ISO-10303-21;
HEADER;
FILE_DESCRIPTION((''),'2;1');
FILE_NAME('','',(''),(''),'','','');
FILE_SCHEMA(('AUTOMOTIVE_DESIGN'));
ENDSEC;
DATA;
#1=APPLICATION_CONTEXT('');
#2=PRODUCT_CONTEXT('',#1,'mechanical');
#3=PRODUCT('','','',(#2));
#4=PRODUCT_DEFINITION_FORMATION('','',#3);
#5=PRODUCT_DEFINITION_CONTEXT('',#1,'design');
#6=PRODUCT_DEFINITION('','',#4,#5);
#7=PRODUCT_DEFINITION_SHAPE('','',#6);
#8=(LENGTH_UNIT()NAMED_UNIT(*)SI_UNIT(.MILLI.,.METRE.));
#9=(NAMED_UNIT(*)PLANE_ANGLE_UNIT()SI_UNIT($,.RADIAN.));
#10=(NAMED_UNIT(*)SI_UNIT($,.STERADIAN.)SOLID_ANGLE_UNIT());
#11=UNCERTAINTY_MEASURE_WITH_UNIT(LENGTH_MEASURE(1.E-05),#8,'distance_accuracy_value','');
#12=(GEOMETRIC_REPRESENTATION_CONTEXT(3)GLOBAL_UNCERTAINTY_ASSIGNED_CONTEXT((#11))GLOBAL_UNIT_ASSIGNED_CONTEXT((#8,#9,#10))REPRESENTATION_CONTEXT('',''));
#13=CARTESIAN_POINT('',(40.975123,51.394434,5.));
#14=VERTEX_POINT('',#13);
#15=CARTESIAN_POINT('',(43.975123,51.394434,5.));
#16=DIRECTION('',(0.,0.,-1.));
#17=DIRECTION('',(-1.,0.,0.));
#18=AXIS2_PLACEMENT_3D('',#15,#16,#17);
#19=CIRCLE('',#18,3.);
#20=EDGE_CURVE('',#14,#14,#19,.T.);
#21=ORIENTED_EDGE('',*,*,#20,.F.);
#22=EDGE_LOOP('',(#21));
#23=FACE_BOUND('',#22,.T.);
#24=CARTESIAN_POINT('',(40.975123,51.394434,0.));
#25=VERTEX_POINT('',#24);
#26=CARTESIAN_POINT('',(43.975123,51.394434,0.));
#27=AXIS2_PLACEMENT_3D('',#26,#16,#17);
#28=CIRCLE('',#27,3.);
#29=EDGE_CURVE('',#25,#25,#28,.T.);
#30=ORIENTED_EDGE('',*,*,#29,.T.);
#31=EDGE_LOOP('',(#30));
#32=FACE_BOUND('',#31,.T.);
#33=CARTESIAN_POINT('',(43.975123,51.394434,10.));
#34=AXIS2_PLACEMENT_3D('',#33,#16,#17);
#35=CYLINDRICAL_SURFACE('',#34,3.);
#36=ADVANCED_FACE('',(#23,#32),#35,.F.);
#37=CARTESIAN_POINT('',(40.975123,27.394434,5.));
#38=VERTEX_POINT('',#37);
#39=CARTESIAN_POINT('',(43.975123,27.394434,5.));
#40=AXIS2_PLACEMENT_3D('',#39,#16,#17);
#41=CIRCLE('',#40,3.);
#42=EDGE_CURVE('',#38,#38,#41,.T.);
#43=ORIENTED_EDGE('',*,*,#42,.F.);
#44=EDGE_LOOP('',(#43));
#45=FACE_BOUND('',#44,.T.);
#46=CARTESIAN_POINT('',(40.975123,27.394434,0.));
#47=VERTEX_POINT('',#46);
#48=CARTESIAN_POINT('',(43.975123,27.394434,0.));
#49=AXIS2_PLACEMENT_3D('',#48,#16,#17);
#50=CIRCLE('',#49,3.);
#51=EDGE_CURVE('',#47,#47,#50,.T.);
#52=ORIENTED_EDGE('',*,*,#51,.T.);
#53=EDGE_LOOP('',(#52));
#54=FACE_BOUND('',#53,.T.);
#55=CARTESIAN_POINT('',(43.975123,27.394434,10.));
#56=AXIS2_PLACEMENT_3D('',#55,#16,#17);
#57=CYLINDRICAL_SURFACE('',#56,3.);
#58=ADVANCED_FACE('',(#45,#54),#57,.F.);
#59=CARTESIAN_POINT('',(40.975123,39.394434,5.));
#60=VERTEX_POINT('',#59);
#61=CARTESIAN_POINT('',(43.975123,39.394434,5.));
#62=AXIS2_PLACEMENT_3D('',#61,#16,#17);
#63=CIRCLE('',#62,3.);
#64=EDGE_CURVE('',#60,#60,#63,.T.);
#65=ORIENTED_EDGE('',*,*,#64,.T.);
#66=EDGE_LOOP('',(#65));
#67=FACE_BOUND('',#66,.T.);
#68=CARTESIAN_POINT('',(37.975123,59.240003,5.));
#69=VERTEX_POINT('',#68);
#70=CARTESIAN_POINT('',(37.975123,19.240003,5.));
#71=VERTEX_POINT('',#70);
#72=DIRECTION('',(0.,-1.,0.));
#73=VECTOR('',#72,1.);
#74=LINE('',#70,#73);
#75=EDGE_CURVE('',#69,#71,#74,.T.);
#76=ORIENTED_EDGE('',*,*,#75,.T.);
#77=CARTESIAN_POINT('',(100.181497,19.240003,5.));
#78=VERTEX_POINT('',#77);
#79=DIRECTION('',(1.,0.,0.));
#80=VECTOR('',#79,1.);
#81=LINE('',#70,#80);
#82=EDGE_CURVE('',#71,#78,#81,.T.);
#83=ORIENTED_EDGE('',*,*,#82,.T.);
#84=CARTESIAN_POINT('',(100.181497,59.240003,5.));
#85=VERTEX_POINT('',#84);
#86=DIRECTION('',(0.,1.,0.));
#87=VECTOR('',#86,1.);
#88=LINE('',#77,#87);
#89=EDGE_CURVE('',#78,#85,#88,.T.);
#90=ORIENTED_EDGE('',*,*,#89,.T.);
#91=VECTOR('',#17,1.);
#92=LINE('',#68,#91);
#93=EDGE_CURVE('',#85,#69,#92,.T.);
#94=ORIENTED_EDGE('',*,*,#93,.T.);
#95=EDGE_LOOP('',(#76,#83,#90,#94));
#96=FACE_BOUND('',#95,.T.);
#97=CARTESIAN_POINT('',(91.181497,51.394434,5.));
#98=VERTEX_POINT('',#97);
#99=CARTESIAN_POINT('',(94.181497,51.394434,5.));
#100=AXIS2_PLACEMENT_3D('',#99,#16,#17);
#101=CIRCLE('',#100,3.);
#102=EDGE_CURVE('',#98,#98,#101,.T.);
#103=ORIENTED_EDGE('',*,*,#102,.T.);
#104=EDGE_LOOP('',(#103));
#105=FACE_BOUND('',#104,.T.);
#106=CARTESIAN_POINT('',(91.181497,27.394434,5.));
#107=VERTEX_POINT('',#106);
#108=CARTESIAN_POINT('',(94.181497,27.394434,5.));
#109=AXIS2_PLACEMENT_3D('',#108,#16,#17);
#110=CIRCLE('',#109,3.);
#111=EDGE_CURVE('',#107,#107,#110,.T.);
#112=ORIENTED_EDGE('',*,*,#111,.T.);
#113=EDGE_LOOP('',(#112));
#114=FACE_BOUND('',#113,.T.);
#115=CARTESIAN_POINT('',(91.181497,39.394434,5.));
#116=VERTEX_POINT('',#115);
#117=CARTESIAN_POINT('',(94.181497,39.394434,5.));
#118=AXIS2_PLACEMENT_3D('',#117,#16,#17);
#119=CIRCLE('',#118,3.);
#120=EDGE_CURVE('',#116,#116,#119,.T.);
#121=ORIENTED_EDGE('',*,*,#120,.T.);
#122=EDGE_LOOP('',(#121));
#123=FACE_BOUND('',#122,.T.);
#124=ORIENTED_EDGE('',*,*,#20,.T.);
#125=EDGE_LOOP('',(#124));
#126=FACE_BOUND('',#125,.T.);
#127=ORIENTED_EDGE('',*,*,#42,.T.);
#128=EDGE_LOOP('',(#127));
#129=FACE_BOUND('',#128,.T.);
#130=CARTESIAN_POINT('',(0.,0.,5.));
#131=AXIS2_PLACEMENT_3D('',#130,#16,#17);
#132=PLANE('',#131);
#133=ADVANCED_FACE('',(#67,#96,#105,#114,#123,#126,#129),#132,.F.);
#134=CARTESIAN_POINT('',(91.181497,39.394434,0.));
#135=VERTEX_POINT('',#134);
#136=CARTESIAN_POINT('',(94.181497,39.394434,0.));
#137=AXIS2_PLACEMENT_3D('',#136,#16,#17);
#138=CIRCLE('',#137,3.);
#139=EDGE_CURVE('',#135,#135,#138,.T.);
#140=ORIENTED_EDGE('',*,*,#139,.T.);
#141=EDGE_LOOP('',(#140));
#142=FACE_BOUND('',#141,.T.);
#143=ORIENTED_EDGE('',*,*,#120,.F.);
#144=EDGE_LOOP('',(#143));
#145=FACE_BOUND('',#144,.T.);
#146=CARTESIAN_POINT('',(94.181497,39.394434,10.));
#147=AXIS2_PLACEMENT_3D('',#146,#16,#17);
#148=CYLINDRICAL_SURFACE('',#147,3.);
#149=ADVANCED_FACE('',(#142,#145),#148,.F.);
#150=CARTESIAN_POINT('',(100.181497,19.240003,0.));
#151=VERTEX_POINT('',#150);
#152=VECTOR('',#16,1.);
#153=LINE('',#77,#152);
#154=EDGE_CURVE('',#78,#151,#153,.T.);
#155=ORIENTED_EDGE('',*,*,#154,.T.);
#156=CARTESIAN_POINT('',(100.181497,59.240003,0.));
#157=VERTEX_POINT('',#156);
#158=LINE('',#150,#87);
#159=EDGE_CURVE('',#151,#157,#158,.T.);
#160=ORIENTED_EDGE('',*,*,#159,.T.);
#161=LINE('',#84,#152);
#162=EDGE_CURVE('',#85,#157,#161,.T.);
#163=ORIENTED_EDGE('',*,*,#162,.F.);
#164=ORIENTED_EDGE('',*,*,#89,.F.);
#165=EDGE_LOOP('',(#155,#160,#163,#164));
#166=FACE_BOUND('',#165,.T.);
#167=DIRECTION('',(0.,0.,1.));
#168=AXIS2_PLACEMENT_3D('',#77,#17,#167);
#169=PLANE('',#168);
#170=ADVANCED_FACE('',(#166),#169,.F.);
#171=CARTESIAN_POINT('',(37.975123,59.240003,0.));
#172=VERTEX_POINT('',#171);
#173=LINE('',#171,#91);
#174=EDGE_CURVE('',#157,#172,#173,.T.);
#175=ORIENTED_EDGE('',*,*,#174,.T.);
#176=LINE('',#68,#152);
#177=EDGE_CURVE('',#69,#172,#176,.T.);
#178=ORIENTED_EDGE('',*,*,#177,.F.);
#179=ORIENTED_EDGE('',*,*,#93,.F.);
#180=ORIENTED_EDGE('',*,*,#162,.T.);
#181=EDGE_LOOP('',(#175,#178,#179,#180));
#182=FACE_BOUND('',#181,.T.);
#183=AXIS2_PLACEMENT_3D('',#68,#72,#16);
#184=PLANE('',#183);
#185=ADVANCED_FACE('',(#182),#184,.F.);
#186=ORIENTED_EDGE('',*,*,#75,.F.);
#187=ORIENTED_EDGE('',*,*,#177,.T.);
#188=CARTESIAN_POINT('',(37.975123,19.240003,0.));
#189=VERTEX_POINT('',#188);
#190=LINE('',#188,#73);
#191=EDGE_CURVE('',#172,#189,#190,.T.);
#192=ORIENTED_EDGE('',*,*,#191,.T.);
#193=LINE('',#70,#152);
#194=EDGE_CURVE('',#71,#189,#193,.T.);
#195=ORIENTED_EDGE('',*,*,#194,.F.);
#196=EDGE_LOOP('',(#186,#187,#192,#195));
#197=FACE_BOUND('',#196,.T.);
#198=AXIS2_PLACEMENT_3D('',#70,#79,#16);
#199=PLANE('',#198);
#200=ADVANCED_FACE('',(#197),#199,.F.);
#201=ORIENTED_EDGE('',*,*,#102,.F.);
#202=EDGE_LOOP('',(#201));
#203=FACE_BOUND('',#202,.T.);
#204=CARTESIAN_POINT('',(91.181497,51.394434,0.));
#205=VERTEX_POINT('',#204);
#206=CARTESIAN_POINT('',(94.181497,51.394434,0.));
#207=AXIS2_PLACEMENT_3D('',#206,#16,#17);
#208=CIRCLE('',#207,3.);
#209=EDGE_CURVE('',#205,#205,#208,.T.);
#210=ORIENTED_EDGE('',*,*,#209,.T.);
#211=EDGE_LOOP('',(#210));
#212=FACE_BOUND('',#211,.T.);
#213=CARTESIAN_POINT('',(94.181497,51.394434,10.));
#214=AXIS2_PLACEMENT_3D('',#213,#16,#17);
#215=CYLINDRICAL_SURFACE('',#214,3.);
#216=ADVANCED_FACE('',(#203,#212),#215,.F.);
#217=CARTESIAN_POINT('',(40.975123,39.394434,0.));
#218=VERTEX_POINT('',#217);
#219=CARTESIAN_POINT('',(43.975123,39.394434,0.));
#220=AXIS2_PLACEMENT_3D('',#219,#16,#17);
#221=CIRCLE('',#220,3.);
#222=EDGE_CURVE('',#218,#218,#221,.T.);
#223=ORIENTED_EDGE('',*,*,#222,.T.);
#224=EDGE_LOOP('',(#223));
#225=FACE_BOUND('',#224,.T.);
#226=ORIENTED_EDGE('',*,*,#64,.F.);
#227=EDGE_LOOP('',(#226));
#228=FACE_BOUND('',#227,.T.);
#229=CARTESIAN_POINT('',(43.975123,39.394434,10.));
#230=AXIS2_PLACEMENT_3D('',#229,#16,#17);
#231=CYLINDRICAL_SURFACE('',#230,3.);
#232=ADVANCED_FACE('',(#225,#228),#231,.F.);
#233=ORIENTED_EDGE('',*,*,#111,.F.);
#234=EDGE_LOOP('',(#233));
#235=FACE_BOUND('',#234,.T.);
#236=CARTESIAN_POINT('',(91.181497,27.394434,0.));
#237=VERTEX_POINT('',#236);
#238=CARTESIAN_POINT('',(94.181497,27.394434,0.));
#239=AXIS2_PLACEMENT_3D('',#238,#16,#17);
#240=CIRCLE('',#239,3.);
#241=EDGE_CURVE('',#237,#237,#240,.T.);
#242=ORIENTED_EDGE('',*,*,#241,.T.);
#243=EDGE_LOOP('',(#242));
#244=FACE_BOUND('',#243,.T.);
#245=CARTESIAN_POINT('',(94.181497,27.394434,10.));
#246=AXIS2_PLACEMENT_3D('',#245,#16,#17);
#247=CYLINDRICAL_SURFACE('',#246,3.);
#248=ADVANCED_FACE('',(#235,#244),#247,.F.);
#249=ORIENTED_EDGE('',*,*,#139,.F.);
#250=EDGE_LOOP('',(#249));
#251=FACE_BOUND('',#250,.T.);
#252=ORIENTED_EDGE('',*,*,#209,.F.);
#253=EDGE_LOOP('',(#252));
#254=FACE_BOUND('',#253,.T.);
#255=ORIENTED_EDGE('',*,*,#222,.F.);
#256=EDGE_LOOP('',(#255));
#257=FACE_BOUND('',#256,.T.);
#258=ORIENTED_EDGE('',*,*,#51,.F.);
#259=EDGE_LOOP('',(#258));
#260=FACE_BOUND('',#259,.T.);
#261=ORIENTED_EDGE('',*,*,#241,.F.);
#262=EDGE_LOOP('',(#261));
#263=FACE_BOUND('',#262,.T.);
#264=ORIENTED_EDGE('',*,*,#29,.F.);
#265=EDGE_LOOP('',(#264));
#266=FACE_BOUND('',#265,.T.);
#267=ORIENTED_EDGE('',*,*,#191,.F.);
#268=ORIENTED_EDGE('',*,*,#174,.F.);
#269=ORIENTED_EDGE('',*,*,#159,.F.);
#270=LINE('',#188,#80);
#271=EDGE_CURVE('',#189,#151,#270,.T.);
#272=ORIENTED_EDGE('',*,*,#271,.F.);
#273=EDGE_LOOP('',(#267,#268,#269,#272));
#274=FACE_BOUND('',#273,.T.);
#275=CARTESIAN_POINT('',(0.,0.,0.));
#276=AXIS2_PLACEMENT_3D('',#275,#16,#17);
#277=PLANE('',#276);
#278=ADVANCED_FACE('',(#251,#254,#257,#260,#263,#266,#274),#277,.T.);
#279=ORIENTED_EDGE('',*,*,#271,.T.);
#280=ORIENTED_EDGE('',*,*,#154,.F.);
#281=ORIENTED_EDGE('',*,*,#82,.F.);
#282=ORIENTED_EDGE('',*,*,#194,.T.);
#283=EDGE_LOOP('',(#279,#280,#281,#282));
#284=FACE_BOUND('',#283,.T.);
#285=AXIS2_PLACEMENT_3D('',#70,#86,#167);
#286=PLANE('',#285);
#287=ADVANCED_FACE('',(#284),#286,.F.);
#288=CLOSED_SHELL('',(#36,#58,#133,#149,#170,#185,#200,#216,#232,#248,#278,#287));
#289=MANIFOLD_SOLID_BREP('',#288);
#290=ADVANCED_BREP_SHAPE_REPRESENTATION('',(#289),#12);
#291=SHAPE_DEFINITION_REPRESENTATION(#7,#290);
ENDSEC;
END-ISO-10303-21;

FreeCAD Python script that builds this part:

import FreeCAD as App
import Part
import Sketcher


def add_polygon(sketch, points):
    """Adds a closed chain of lines whose ends are joined by coincident constraints."""
    first, n = sketch.GeometryCount, len(points)
    for a, b in zip(points, points[1:] + points[:1]):
        sketch.addGeometry(Part.LineSegment(App.Vector(*a, 0), App.Vector(*b, 0)), False)
    for i in range(n):
        sketch.addConstraint(Sketcher.Constraint("Coincident", first + i, 2, first + (i + 1) % n, 1))

doc = App.newDocument("Part")
params = doc.addObject("Spreadsheet::Sheet", "Params")
for row, (alias, value) in enumerate([
    ("sketch1_height", "40 mm"),
    ("pad1_length", "5 mm"),
    ("sketch2_diameter", "6 mm"),
    ("pocket1_length", "10 mm"),
], start=1):
    params.set(f"A{row}", alias)
    params.set(f"B{row}", "=" + value)
    params.setAlias(f"B{row}", alias)

body = doc.addObject("PartDesign::Body", "Body")

# Sketch on XY plane
sketch1 = doc.addObject("Sketcher::SketchObject", "Sketch")
body.addObject(sketch1)
sketch1.AttachmentSupport = (doc.XY_Plane, [""])
sketch1.MapMode = "FlatFace"
add_polygon(sketch1, [(37.975123, 59.240003), (37.975123, 19.240003), (100.181497, 19.240003), (100.181497, 59.240003)])  # lines 0-3
sketch1.addConstraint(Sketcher.Constraint("Vertical", 0))
sketch1.addConstraint(Sketcher.Constraint("Horizontal", 1))
sketch1.addConstraint(Sketcher.Constraint("Vertical", 2))
sketch1.addConstraint(Sketcher.Constraint("Horizontal", 3))
sketch1.addConstraint(Sketcher.Constraint("DistanceY", 0, 2, 0, 1, 40.0))
sketch1.addConstraint(Sketcher.Constraint("DistanceX", 1, 1, 1, 2, 62.206374))
sketch1.addConstraint(Sketcher.Constraint("DistanceX", -1, 1, 0, 2, 37.975123))
sketch1.addConstraint(Sketcher.Constraint("DistanceY", -1, 1, 0, 2, 19.240003))
sketch1.setExpression("Constraints[8]", "Params.sketch1_height")
pad1 = doc.addObject("PartDesign::Pad", "Pad")
body.addObject(pad1)
pad1.Profile = sketch1
pad1.setExpression("Length", "Params.pad1_length")

# Sketch on XY plane
sketch2 = doc.addObject("Sketcher::SketchObject", "Sketch001")
body.addObject(sketch2)
sketch2.AttachmentSupport = (doc.XY_Plane, [""])
sketch2.MapMode = "FlatFace"
sketch2.addGeometry(Part.Circle(App.Vector(94.181497, 27.394434, 0), App.Vector(0, 0, 1), 3), False)
sketch2.addGeometry(Part.Circle(App.Vector(94.181497, 39.394434, 0), App.Vector(0, 0, 1), 3), False)
sketch2.addGeometry(Part.Circle(App.Vector(94.181497, 51.394434, 0), App.Vector(0, 0, 1), 3), False)
sketch2.addGeometry(Part.Circle(App.Vector(43.975123, 27.394434, 0), App.Vector(0, 0, 1), 3), False)
sketch2.addGeometry(Part.Circle(App.Vector(43.975123, 39.394434, 0), App.Vector(0, 0, 1), 3), False)
sketch2.addGeometry(Part.Circle(App.Vector(43.975123, 51.394434, 0), App.Vector(0, 0, 1), 3), False)
sketch2.addConstraint(Sketcher.Constraint("Equal", 0, 1))
sketch2.addConstraint(Sketcher.Constraint("Equal", 1, 2))
sketch2.addConstraint(Sketcher.Constraint("Equal", 2, 3))
sketch2.addConstraint(Sketcher.Constraint("Equal", 3, 4))
sketch2.addConstraint(Sketcher.Constraint("Equal", 4, 5))
sketch2.addConstraint(Sketcher.Constraint("Horizontal", 0, 3, 3, 3))
sketch2.addConstraint(Sketcher.Constraint("Horizontal", 1, 3, 4, 3))
sketch2.addConstraint(Sketcher.Constraint("Horizontal", 2, 3, 5, 3))
sketch2.addConstraint(Sketcher.Constraint("Vertical", 0, 3, 1, 3))
sketch2.addConstraint(Sketcher.Constraint("Vertical", 1, 3, 2, 3))
sketch2.addConstraint(Sketcher.Constraint("Vertical", 3, 3, 4, 3))
sketch2.addConstraint(Sketcher.Constraint("Vertical", 4, 3, 5, 3))
sketch2.addConstraint(Sketcher.Constraint("Diameter", 0, 6.0))
sketch2.addConstraint(Sketcher.Constraint("DistanceY", 0, 3, 1, 3, 12.0))
sketch2.addConstraint(Sketcher.Constraint("DistanceY", 1, 3, 2, 3, 12.0))
sketch2.addConstraint(Sketcher.Constraint("DistanceX", -1, 1, 0, 3, 94.181497))
sketch2.addConstraint(Sketcher.Constraint("DistanceY", -1, 1, 0, 3, 27.394434))
sketch2.addConstraint(Sketcher.Constraint("DistanceX", -1, 1, 3, 3, 43.975123))
sketch2.setExpression("Constraints[12]", "Params.sketch2_diameter")
pocket1 = doc.addObject("PartDesign::Pocket", "Pocket")
body.addObject(pocket1)
pocket1.Profile = sketch2
pocket1.setExpression("Length", "Params.pocket1_length")
pocket1.Reversed = True

doc.recompute()
